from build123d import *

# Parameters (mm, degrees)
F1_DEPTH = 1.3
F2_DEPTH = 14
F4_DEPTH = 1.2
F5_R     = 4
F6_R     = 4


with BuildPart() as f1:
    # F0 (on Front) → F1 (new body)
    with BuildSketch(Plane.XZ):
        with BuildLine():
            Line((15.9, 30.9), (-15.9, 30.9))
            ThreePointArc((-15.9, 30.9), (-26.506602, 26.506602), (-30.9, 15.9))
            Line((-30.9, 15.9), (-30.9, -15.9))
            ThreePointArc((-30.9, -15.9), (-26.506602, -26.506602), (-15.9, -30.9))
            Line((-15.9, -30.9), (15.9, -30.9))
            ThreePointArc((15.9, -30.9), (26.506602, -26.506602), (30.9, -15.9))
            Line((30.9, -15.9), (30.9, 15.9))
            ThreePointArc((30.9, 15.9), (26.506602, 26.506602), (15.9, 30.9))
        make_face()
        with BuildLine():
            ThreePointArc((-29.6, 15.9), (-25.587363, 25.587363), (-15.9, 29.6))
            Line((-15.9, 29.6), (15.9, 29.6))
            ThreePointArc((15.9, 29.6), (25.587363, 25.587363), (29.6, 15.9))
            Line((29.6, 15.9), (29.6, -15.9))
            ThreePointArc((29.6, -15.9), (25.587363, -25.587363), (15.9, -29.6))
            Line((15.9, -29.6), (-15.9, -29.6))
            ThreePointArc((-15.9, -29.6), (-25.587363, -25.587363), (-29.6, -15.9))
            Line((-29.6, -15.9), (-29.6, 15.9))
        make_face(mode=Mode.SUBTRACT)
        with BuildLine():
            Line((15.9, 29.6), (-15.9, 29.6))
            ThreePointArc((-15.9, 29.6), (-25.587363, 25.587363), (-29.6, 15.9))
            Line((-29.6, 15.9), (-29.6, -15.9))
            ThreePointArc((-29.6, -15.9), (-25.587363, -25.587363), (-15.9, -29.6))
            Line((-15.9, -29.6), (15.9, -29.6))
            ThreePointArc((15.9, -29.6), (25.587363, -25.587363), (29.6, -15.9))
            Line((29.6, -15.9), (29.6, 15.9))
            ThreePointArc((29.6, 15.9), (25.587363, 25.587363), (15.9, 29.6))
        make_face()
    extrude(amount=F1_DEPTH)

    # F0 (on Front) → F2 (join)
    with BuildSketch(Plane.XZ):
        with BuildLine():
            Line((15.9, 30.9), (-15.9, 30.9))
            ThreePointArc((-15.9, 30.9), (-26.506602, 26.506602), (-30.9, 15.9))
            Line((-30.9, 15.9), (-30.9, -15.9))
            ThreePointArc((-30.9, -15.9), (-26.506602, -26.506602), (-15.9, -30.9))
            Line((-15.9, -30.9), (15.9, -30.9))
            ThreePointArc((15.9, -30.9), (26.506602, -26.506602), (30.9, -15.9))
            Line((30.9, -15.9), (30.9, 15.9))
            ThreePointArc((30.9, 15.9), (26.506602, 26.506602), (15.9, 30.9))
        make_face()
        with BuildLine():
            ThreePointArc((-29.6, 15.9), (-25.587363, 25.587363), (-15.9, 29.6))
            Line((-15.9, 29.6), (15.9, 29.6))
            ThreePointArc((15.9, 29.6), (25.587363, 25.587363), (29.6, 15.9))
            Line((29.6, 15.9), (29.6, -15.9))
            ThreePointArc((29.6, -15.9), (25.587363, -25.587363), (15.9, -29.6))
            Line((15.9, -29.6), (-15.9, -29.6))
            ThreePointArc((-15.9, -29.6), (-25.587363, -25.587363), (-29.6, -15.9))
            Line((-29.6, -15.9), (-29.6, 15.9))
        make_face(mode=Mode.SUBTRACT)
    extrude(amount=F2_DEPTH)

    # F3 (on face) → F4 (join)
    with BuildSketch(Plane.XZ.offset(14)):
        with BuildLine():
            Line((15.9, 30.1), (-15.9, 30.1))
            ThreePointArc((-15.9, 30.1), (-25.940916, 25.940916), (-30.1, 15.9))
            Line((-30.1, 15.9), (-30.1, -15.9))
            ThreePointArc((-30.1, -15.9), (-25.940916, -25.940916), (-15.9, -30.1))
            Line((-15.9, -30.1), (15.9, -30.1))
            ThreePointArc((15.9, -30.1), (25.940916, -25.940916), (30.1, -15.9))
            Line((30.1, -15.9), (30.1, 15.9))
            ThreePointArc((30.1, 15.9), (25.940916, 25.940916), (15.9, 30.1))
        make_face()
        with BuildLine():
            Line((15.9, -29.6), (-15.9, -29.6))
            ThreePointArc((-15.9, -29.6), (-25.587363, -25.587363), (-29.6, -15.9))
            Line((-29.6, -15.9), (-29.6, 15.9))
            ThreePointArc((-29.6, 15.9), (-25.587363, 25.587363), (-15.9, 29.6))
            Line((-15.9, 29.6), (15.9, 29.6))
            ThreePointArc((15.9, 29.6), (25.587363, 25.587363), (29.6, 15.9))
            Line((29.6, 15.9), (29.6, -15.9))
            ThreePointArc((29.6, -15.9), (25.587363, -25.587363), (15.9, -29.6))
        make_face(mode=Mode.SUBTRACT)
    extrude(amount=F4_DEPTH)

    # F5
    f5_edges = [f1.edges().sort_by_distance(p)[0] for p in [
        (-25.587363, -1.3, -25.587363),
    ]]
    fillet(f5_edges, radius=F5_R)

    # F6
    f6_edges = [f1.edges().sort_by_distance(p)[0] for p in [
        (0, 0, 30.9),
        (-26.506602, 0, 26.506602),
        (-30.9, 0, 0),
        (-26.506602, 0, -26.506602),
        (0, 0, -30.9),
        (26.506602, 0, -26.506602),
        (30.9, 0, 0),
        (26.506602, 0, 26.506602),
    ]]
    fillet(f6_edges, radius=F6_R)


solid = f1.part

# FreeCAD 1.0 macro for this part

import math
import FreeCAD as App
import Part
import Sketcher


def edges_at(feature, points):
    """Names of the edges that pass closest to the given points."""
    edges = feature.Shape.Edges
    near = lambda p: min(range(len(edges)), key=lambda i: edges[i].distToShape(Part.Vertex(*p))[0])
    return sorted({f"Edge{near(p) + 1}" for p in points})

doc = App.newDocument("Part")
body = doc.addObject("PartDesign::Body", "Body")

# Sketch on XZ plane
sketch1 = body.newObject("Sketcher::SketchObject", "Sketch")
sketch1.AttachmentSupport = (doc.getObject("XZ_Plane"), [""])
sketch1.MapMode = "FlatFace"
sketch1.addGeometry(Part.LineSegment(App.Vector(16, 31, 0), App.Vector(-16, 31, 0)), False)
sketch1.addGeometry(Part.ArcOfCircle(Part.Circle(App.Vector(-16, 16, 0), App.Vector(0, 0, 1), 15), math.radians(90), math.radians(180)), False)
sketch1.addGeometry(Part.LineSegment(App.Vector(-31, 16, 0), App.Vector(-31, -16, 0)), False)
sketch1.addGeometry(Part.ArcOfCircle(Part.Circle(App.Vector(-16, -16, 0), App.Vector(0, 0, 1), 15), math.radians(180), math.radians(270)), False)
sketch1.addGeometry(Part.LineSegment(App.Vector(-16, -31, 0), App.Vector(16, -31, 0)), False)
sketch1.addGeometry(Part.ArcOfCircle(Part.Circle(App.Vector(16, -16, 0), App.Vector(0, 0, 1), 15), math.radians(-90), math.radians(0)), False)
sketch1.addGeometry(Part.LineSegment(App.Vector(31, -16, 0), App.Vector(31, 16, 0)), False)
sketch1.addGeometry(Part.ArcOfCircle(Part.Circle(App.Vector(16, 16, 0), App.Vector(0, 0, 1), 15), math.radians(0), math.radians(90)), False)
sketch1.addConstraint(Sketcher.Constraint("Tangent", 0, 2, 1, 1))
sketch1.addConstraint(Sketcher.Constraint("Tangent", 1, 2, 2, 1))
sketch1.addConstraint(Sketcher.Constraint("Tangent", 2, 2, 3, 1))
sketch1.addConstraint(Sketcher.Constraint("Tangent", 3, 2, 4, 1))
sketch1.addConstraint(Sketcher.Constraint("Tangent", 4, 2, 5, 1))
sketch1.addConstraint(Sketcher.Constraint("Tangent", 5, 2, 6, 1))
sketch1.addConstraint(Sketcher.Constraint("Tangent", 6, 2, 7, 1))
sketch1.addConstraint(Sketcher.Constraint("Tangent", 7, 2, 0, 1))
sketch1.addConstraint(Sketcher.Constraint("Horizontal", 0))
sketch1.addConstraint(Sketcher.Constraint("Vertical", 2))
sketch1.addConstraint(Sketcher.Constraint("Horizontal", 4))
sketch1.addConstraint(Sketcher.Constraint("Vertical", 6))
sketch1.addConstraint(Sketcher.Constraint("Equal", 1, 3))
sketch1.addConstraint(Sketcher.Constraint("Equal", 3, 5))
sketch1.addConstraint(Sketcher.Constraint("Equal", 5, 7))
sketch1.addConstraint(Sketcher.Constraint("Symmetric", 1, 3, 5, 3, -1, 1))
sketch1.addConstraint(Sketcher.Constraint("Equal", 4, 2))
sketch1.addConstraint(Sketcher.Constraint("Radius", 1, 14.999999))
sketch1.addConstraint(Sketcher.Constraint("DistanceX", 0, 2, 0, 1, 31.8))
pad1 = body.newObject("PartDesign::Pad", "Pad")
pad1.Profile = sketch1
pad1.Length = 1.3

# Sketch on XZ plane
sketch2 = body.newObject("Sketcher::SketchObject", "Sketch001")
sketch2.AttachmentSupport = (doc.getObject("XZ_Plane"), [""])
sketch2.MapMode = "FlatFace"
sketch2.addGeometry(Part.LineSegment(App.Vector(16, 31, 0), App.Vector(-16, 31, 0)), False)
sketch2.addGeometry(Part.ArcOfCircle(Part.Circle(App.Vector(-16, 16, 0), App.Vector(0, 0, 1), 15), math.radians(90), math.radians(180)), False)
sketch2.addGeometry(Part.LineSegment(App.Vector(-31, 16, 0), App.Vector(-31, -16, 0)), False)
sketch2.addGeometry(Part.ArcOfCircle(Part.Circle(App.Vector(-16, -16, 0), App.Vector(0, 0, 1), 15), math.radians(180), math.radians(270)), False)
sketch2.addGeometry(Part.LineSegment(App.Vector(-16, -31, 0), App.Vector(16, -31, 0)), False)
sketch2.addGeometry(Part.ArcOfCircle(Part.Circle(App.Vector(16, -16, 0), App.Vector(0, 0, 1), 15), math.radians(-90), math.radians(0)), False)
sketch2.addGeometry(Part.LineSegment(App.Vector(31, -16, 0), App.Vector(31, 16, 0)), False)
sketch2.addGeometry(Part.ArcOfCircle(Part.Circle(App.Vector(16, 16, 0), App.Vector(0, 0, 1), 15), math.radians(0), math.radians(90)), False)
sketch2.addGeometry(Part.LineSegment(App.Vector(-30, -16, 0), App.Vector(-30, 16, 0)), False)
sketch2.addGeometry(Part.ArcOfCircle(Part.Circle(App.Vector(-16, 16, 0), App.Vector(0, 0, 1), 14), math.radians(90), math.radians(180)), False)
sketch2.addGeometry(Part.LineSegment(App.Vector(-16, 30, 0), App.Vector(16, 30, 0)), False)
sketch2.addGeometry(Part.ArcOfCircle(Part.Circle(App.Vector(16, 16, 0), App.Vector(0, 0, 1), 14), math.radians(0), math.radians(90)), False)
sketch2.addGeometry(Part.LineSegment(App.Vector(30, 16, 0), App.Vector(30, -16, 0)), False)
sketch2.addGeometry(Part.ArcOfCircle(Part.Circle(App.Vector(16, -16, 0), App.Vector(0, 0, 1), 14), math.radians(-90), math.radians(0)), False)
sketch2.addGeometry(Part.LineSegment(App.Vector(16, -30, 0), App.Vector(-16, -30, 0)), False)
sketch2.addGeometry(Part.ArcOfCircle(Part.Circle(App.Vector(-16, -16, 0), App.Vector(0, 0, 1), 14), math.radians(180), math.radians(270)), False)
sketch2.addConstraint(Sketcher.Constraint("Tangent", 0, 2, 1, 1))
sketch2.addConstraint(Sketcher.Constraint("Tangent", 1, 2, 2, 1))
sketch2.addConstraint(Sketcher.Constraint("Tangent", 2, 2, 3, 1))
sketch2.addConstraint(Sketcher.Constraint("Tangent", 3, 2, 4, 1))
sketch2.addConstraint(Sketcher.Constraint("Tangent", 4, 2, 5, 1))
sketch2.addConstraint(Sketcher.Constraint("Tangent", 5, 2, 6, 1))
sketch2.addConstraint(Sketcher.Constraint("Tangent", 6, 2, 7, 1))
sketch2.addConstraint(Sketcher.Constraint("Tangent", 7, 2, 0, 1))
sketch2.addConstraint(Sketcher.Constraint("Tangent", 8, 2, 9, 2))
sketch2.addConstraint(Sketcher.Constraint("Tangent", 9, 1, 10, 1))
sketch2.addConstraint(Sketcher.Constraint("Tangent", 10, 2, 11, 2))
sketch2.addConstraint(Sketcher.Constraint("Tangent", 11, 1, 12, 1))
sketch2.addConstraint(Sketcher.Constraint("Tangent", 12, 2, 13, 2))
sketch2.addConstraint(Sketcher.Constraint("Tangent", 13, 1, 14, 1))
sketch2.addConstraint(Sketcher.Constraint("Tangent", 14, 2, 15, 2))
sketch2.addConstraint(Sketcher.Constraint("Tangent", 15, 1, 8, 1))
sketch2.addConstraint(Sketcher.Constraint("Horizontal", 0))
sketch2.addConstraint(Sketcher.Constraint("Vertical", 2))
sketch2.addConstraint(Sketcher.Constraint("Horizontal", 4))
sketch2.addConstraint(Sketcher.Constraint("Vertical", 6))
sketch2.addConstraint(Sketcher.Constraint("Vertical", 8))
sketch2.addConstraint(Sketcher.Constraint("Horizontal", 10))
sketch2.addConstraint(Sketcher.Constraint("Vertical", 12))
sketch2.addConstraint(Sketcher.Constraint("Horizontal", 14))
sketch2.addConstraint(Sketcher.Constraint("Coincident", 9, 3, 1, 3))
sketch2.addConstraint(Sketcher.Constraint("Coincident", 11, 3, 7, 3))
sketch2.addConstraint(Sketcher.Constraint("Coincident", 13, 3, 5, 3))
sketch2.addConstraint(Sketcher.Constraint("Equal", 1, 3))
sketch2.addConstraint(Sketcher.Constraint("Equal", 3, 5))
sketch2.addConstraint(Sketcher.Constraint("Equal", 5, 7))
sketch2.addConstraint(Sketcher.Constraint("Equal", 13, 15))
sketch2.addConstraint(Sketcher.Constraint("Symmetric", 1, 3, 5, 3, -1, 1))
sketch2.addConstraint(Sketcher.Constraint("Equal", 14, 2))
sketch2.addConstraint(Sketcher.Constraint("Radius", 1, 14.999999))
sketch2.addConstraint(Sketcher.Constraint("Radius", 9, 13.7))
sketch2.addConstraint(Sketcher.Constraint("DistanceX", 0, 2, 0, 1, 31.8))
pad2 = body.newObject("PartDesign::Pad", "Pad001")
pad2.Profile = sketch2
pad2.Length = 14

# Sketch on XZ plane
sketch3 = body.newObject("Sketcher::SketchObject", "Sketch002")
sketch3.AttachmentSupport = (doc.getObject("XZ_Plane"), [""])
sketch3.MapMode = "FlatFace"
sketch3.AttachmentOffset = App.Placement(App.Vector(0, 0, 14), App.Rotation())
sketch3.addGeometry(Part.LineSegment(App.Vector(16, 30, 0), App.Vector(-16, 30, 0)), False)
sketch3.addGeometry(Part.ArcOfCircle(Part.Circle(App.Vector(-16, 16, 0), App.Vector(0, 0, 1), 14), math.radians(90), math.radians(180)), False)
sketch3.addGeometry(Part.LineSegment(App.Vector(-30, 16, 0), App.Vector(-30, -16, 0)), False)
sketch3.addGeometry(Part.ArcOfCircle(Part.Circle(App.Vector(-16, -16, 0), App.Vector(0, 0, 1), 14), math.radians(-180), math.radians(-90)), False)
sketch3.addGeometry(Part.LineSegment(App.Vector(-16, -30, 0), App.Vector(16, -30, 0)), False)
sketch3.addGeometry(Part.ArcOfCircle(Part.Circle(App.Vector(16, -16, 0), App.Vector(0, 0, 1), 14), math.radians(-90), math.radians(0)), False)
sketch3.addGeometry(Part.LineSegment(App.Vector(30, -16, 0), App.Vector(30, 16, 0)), False)
sketch3.addGeometry(Part.ArcOfCircle(Part.Circle(App.Vector(16, 16, 0), App.Vector(0, 0, 1), 14), math.radians(0), math.radians(90)), False)
sketch3.addGeometry(Part.ArcOfCircle(Part.Circle(App.Vector(16, -16, 0), App.Vector(0, 0, 1), 14), math.radians(-90), math.radians(0)), False)
sketch3.addGeometry(Part.LineSegment(App.Vector(16, -30, 0), App.Vector(-16, -30, 0)), False)
sketch3.addGeometry(Part.ArcOfCircle(Part.Circle(App.Vector(-16, -16, 0), App.Vector(0, 0, 1), 14), math.radians(180), math.radians(270)), False)
sketch3.addGeometry(Part.LineSegment(App.Vector(-30, -16, 0), App.Vector(-30, 16, 0)), False)
sketch3.addGeometry(Part.ArcOfCircle(Part.Circle(App.Vector(-16, 16, 0), App.Vector(0, 0, 1), 14), math.radians(90), math.radians(180)), False)
sketch3.addGeometry(Part.LineSegment(App.Vector(-16, 30, 0), App.Vector(16, 30, 0)), False)
sketch3.addGeometry(Part.ArcOfCircle(Part.Circle(App.Vector(16, 16, 0), App.Vector(0, 0, 1), 14), math.radians(0), math.radians(90)), False)
sketch3.addGeometry(Part.LineSegment(App.Vector(30, 16, 0), App.Vector(30, -16, 0)), False)
sketch3.addConstraint(Sketcher.Constraint("Tangent", 0, 2, 1, 1))
sketch3.addConstraint(Sketcher.Constraint("Tangent", 1, 2, 2, 1))
sketch3.addConstraint(Sketcher.Constraint("Tangent", 2, 2, 3, 1))
sketch3.addConstraint(Sketcher.Constraint("Tangent", 3, 2, 4, 1))
sketch3.addConstraint(Sketcher.Constraint("Tangent", 4, 2, 5, 1))
sketch3.addConstraint(Sketcher.Constraint("Tangent", 5, 2, 6, 1))
sketch3.addConstraint(Sketcher.Constraint("Tangent", 6, 2, 7, 1))
sketch3.addConstraint(Sketcher.Constraint("Tangent", 7, 2, 0, 1))
sketch3.addConstraint(Sketcher.Constraint("Tangent", 8, 1, 9, 1))
sketch3.addConstraint(Sketcher.Constraint("Tangent", 9, 2, 10, 2))
sketch3.addConstraint(Sketcher.Constraint("Tangent", 10, 1, 11, 1))
sketch3.addConstraint(Sketcher.Constraint("Tangent", 11, 2, 12, 2))
sketch3.addConstraint(Sketcher.Constraint("Tangent", 12, 1, 13, 1))
sketch3.addConstraint(Sketcher.Constraint("Tangent", 13, 2, 14, 2))
sketch3.addConstraint(Sketcher.Constraint("Tangent", 14, 1, 15, 1))
sketch3.addConstraint(Sketcher.Constraint("Tangent", 15, 2, 8, 2))
sketch3.addConstraint(Sketcher.Constraint("Horizontal", 0))
sketch3.addConstraint(Sketcher.Constraint("Vertical", 2))
sketch3.addConstraint(Sketcher.Constraint("Horizontal", 4))
sketch3.addConstraint(Sketcher.Constraint("Vertical", 6))
sketch3.addConstraint(Sketcher.Constraint("Horizontal", 9))
sketch3.addConstraint(Sketcher.Constraint("Vertical", 11))
sketch3.addConstraint(Sketcher.Constraint("Horizontal", 13))
sketch3.addConstraint(Sketcher.Constraint("Vertical", 15))
sketch3.addConstraint(Sketcher.Constraint("Coincident", 8, 3, 5, 3))
sketch3.addConstraint(Sketcher.Constraint("Coincident", 10, 3, 3, 3))
sketch3.addConstraint(Sketcher.Constraint("Coincident", 12, 3, 1, 3))
sketch3.addConstraint(Sketcher.Constraint("Equal", 1, 3))
sketch3.addConstraint(Sketcher.Constraint("Equal", 3, 5))
sketch3.addConstraint(Sketcher.Constraint("Equal", 5, 7))
sketch3.addConstraint(Sketcher.Constraint("Equal", 12, 14))
sketch3.addConstraint(Sketcher.Constraint("Symmetric", 1, 3, 5, 3, -1, 1))
sketch3.addConstraint(Sketcher.Constraint("Equal", 13, 2))
sketch3.addConstraint(Sketcher.Constraint("Radius", 1, 14.200001))
sketch3.addConstraint(Sketcher.Constraint("Radius", 8, 13.7))
sketch3.addConstraint(Sketcher.Constraint("DistanceX", 0, 2, 0, 1, 31.8))
pad3 = body.newObject("PartDesign::Pad", "Pad002")
pad3.Profile = sketch3
pad3.Length = 1.2
doc.recompute()

fillet = body.newObject("PartDesign::Fillet", "Fillet")
fillet.Base = (pad3, edges_at(pad3, [(-25.587, -1.3, -25.587)]))
fillet.Radius = 4
doc.recompute()

fillet2 = body.newObject("PartDesign::Fillet", "Fillet001")
fillet2.Base = (fillet, edges_at(fillet, [
    (0, 0, 30.9),
    (-26.507, 0, 26.507),
    (-30.9, 0, 0),
    (-26.507, 0, -26.507),
    (0, 0, -30.9),
    (26.507, 0, -26.507),
    (30.9, 0, 0),
    (26.507, 0, 26.507),
]))
fillet2.Radius = 4

doc.recompute()
